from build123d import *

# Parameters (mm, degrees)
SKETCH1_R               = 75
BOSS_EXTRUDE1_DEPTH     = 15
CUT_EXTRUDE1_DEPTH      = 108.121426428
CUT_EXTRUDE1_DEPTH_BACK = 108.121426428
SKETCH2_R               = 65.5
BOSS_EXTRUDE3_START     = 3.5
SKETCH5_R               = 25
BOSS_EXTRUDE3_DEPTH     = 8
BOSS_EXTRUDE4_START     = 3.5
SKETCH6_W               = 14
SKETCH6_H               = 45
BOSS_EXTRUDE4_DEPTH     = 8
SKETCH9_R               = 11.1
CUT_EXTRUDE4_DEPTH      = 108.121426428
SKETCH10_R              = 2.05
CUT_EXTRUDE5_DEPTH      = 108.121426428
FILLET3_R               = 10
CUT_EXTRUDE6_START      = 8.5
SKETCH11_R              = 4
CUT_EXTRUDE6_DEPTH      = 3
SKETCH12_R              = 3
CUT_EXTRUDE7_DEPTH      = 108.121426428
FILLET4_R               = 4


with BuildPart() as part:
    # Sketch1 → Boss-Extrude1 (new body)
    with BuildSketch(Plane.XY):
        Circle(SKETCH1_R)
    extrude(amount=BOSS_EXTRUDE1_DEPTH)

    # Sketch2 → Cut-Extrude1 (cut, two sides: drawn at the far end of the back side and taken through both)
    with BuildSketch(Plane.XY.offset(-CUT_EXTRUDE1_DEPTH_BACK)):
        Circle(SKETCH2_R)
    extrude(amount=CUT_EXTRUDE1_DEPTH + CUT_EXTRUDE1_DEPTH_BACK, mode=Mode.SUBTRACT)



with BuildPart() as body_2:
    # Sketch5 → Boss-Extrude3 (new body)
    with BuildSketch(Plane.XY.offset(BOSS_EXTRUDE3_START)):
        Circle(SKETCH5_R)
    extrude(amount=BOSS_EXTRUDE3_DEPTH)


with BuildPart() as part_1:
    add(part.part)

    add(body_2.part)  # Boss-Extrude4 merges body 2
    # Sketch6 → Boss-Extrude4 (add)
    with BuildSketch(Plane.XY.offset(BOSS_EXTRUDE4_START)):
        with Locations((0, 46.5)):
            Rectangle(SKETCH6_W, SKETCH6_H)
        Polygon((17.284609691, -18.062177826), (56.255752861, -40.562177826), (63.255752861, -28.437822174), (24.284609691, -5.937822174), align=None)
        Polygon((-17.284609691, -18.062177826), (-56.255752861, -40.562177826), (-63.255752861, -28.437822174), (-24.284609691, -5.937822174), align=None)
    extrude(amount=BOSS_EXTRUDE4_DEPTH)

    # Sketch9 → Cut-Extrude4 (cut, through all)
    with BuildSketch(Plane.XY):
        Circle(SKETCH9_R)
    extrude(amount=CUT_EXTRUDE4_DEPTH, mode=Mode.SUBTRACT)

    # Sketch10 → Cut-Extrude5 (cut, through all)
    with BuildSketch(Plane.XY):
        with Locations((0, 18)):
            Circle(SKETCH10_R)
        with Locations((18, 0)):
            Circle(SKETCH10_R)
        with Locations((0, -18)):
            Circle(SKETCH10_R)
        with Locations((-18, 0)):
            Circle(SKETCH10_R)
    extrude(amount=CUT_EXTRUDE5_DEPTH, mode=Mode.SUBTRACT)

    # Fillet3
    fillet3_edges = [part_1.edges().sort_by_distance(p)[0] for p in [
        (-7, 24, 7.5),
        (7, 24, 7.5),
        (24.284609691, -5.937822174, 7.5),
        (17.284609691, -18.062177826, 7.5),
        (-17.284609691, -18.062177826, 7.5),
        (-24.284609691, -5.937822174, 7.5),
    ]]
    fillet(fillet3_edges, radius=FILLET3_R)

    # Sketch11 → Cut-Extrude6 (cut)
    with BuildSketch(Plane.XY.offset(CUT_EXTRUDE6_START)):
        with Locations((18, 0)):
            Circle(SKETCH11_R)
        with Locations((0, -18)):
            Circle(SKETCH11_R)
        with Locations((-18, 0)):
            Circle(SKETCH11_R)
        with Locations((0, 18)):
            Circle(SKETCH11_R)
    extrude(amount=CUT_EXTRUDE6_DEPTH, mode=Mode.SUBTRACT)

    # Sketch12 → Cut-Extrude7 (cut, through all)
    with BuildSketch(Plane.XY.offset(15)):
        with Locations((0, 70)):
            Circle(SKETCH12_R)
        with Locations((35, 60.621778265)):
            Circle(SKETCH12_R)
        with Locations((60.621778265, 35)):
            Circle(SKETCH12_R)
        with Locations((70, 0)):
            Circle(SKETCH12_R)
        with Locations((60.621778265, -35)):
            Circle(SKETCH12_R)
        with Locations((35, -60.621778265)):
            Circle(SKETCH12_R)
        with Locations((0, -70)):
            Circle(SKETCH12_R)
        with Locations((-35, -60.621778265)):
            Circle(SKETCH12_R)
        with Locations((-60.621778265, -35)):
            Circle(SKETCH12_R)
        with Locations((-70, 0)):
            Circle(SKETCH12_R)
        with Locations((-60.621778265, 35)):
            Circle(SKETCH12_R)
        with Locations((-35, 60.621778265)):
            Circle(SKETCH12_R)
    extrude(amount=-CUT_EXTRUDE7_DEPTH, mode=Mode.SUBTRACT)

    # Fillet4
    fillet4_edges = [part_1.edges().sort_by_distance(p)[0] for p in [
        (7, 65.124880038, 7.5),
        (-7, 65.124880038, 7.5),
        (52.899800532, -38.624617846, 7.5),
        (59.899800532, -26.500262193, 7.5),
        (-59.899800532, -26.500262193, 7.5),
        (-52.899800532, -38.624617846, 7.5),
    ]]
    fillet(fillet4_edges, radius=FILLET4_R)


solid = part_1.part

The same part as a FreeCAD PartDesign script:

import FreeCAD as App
import Part
import Sketcher

V = App.Vector
Q = App.Units.Quantity


def edges_at(feature, points):
    """Names of the edges that pass closest to the given points."""
    edges = feature.Shape.Edges
    near = lambda p: min(range(len(edges)), key=lambda i: edges[i].distToShape(Part.Vertex(*p))[0])
    return sorted({f"Edge{near(p) + 1}" for p in points})


def add_polygon(sketch, points):
    """Adds a closed chain of lines whose ends are joined by coincident constraints."""
    first, n = sketch.GeometryCount, len(points)
    for a, b in zip(points, points[1:] + points[:1]):
        sketch.addGeometry(Part.LineSegment(App.Vector(*a, 0), App.Vector(*b, 0)), False)
    for i in range(n):
        sketch.addConstraint(Sketcher.Constraint("Coincident", first + i, 2, first + (i + 1) % n, 1))

doc = App.newDocument("Part")
body = doc.addObject("PartDesign::Body", "Body")

sketch1 = body.newObject("Sketcher::SketchObject", "Sketch")
sketch1.AttachmentSupport = (doc.getObject("XY_Plane"), [""])
sketch1.MapMode = "FlatFace"
sketch1.addGeometry(Part.Circle(V(0, 0, 0), V(0, 0, 1), 75), False)
sketch1.addConstraint([
    Sketcher.Constraint("Coincident", 0, 3, -1, 1),
    Sketcher.Constraint("Diameter", 0, 150.0),
])
pad1 = body.newObject("PartDesign::Pad", "Pad")
pad1.Profile = sketch1
pad1.Length = 15

sketch2 = body.newObject("Sketcher::SketchObject", "Sketch001")
sketch2.AttachmentSupport = (doc.getObject("XY_Plane"), [""])
sketch2.MapMode = "FlatFace"
sketch2.addGeometry(Part.Circle(V(0, 0, 0), V(0, 0, 1), 66), False)
sketch2.addConstraint([
    Sketcher.Constraint("Coincident", 0, 3, -1, 1),
    Sketcher.Constraint("Diameter", 0, 131.0),
])
pocket1 = body.newObject("PartDesign::Pocket", "Pocket")
pocket1.Profile = sketch2
pocket1.Type = "ThroughAll"
pocket1.Midplane = True
body2 = doc.addObject("PartDesign::Body", "Body001")

sketch3 = body2.newObject("Sketcher::SketchObject", "Sketch002")
sketch3.AttachmentSupport = (doc.getObject("XY_Plane001"), [""])
sketch3.MapMode = "FlatFace"
sketch3.AttachmentOffset = App.Placement(V(0, 0, 3.5), App.Rotation())
sketch3.addGeometry(Part.Circle(V(0, 0, 0), V(0, 0, 1), 25), False)
sketch3.addConstraint([
    Sketcher.Constraint("Coincident", 0, 3, -1, 1),
    Sketcher.Constraint("Diameter", 0, 50.0),
])
pad2 = body2.newObject("PartDesign::Pad", "Pad001")
pad2.Profile = sketch3
pad2.Length = 8
body.AllowCompound = True
doc.recompute()

boolean = body.newObject("PartDesign::Boolean", "Boolean")
boolean.Type = "Fuse"
boolean.addObjects([body2])

sketch4 = body.newObject("Sketcher::SketchObject", "Sketch003")
sketch4.AttachmentSupport = (doc.getObject("XY_Plane"), [""])
sketch4.MapMode = "FlatFace"
sketch4.AttachmentOffset = App.Placement(V(0, 0, 3.5), App.Rotation())
add_polygon(sketch4, [(-7, 69), (-7, 24), (7, 24), (7, 69)])
add_polygon(sketch4, [(17, -18), (56, -41), (63, -28), (24, -6)])
add_polygon(sketch4, [(-56, -41), (-17, -18), (-24, -6), (-63, -28)])
sketch4.addConstraint([
    Sketcher.Constraint("Vertical", 0),
    Sketcher.Constraint("Horizontal", 1),
    Sketcher.Constraint("Vertical", 2),
    Sketcher.Constraint("Horizontal", 3),
    Sketcher.Constraint("Symmetric", 7, 2, 8, 2, -2),
    Sketcher.Constraint("Symmetric", 6, 2, 9, 2, -2),
    Sketcher.Constraint("Symmetric", 5, 2, 10, 2, -2),
    Sketcher.Constraint("Symmetric", 4, 2, 11, 2, -2),
    Sketcher.Constraint("Perpendicular", 4, 5),
    Sketcher.Constraint("Perpendicular", 5, 6),
    Sketcher.Constraint("Perpendicular", 6, 7),
    Sketcher.Constraint("DistanceX", 1, 1, 1, 2, 14.0),
    Sketcher.Constraint("DistanceY", 0, 2, 0, 1, 45.0),
    Sketcher.Constraint("Angle", 4, Q("-30 deg")),
    Sketcher.Constraint("Distance", 4, 45.0),
    Sketcher.Constraint("Distance", 5, 14.0),
    Sketcher.Constraint("DistanceX", 0, 2, -1, 1, 7.0),
    Sketcher.Constraint("DistanceY", -1, 1, 0, 2, 24.0),
    Sketcher.Constraint("DistanceX", -1, 1, 6, 2, 24.28461),
    Sketcher.Constraint("DistanceY", 4, 2, -1, 1, 40.562178),
])
pad3 = body.newObject("PartDesign::Pad", "Pad002")
pad3.Profile = sketch4
pad3.Length = 8

sketch5 = body.newObject("Sketcher::SketchObject", "Sketch004")
sketch5.AttachmentSupport = (doc.getObject("XY_Plane"), [""])
sketch5.MapMode = "FlatFace"
sketch5.addGeometry(Part.Circle(V(0, 0, 0), V(0, 0, 1), 11), False)
sketch5.addConstraint([
    Sketcher.Constraint("Coincident", 0, 3, -1, 1),
    Sketcher.Constraint("Diameter", 0, 22.2),
])
pocket2 = body.newObject("PartDesign::Pocket", "Pocket001")
pocket2.Profile = sketch5
pocket2.Type = "ThroughAll"
pocket2.Reversed = True

sketch6 = body.newObject("Sketcher::SketchObject", "Sketch005")
sketch6.AttachmentSupport = (doc.getObject("XY_Plane"), [""])
sketch6.MapMode = "FlatFace"
sketch6.addGeometry([
    Part.Circle(V(0, 18, 0), V(0, 0, 1), 2),
    Part.Circle(V(18, 0, 0), V(0, 0, 1), 2),
    Part.Circle(V(0, -18, 0), V(0, 0, 1), 2),
    Part.Circle(V(-18, 0, 0), V(0, 0, 1), 2),
], False)
sketch6.addConstraint([
    Sketcher.Constraint("Equal", 0, 1),
    Sketcher.Constraint("Equal", 1, 2),
    Sketcher.Constraint("Equal", 2, 3),
    Sketcher.Constraint("Symmetric", 0, 3, 2, 3, -1, 1),
    Sketcher.Constraint("Symmetric", 1, 3, 3, 3, -1, 1),
    Sketcher.Constraint("PointOnObject", 0, 3, -2),
    Sketcher.Constraint("PointOnObject", 1, 3, -1),
    Sketcher.Constraint("Diameter", 0, 4.1),
    Sketcher.Constraint("DistanceY", -1, 1, 0, 3, 18.0),
    Sketcher.Constraint("DistanceX", -1, 1, 1, 3, 18.0),
])
pocket3 = body.newObject("PartDesign::Pocket", "Pocket002")
pocket3.Profile = sketch6
pocket3.Type = "ThroughAll"
pocket3.Reversed = True
doc.recompute()

fillet = body.newObject("PartDesign::Fillet", "Fillet")
fillet.Base = (pocket3, edges_at(pocket3, [
    (-7, 24, 7.5),
    (7, 24, 7.5),
    (24.285, -5.938, 7.5),
    (17.285, -18.062, 7.5),
    (-17.285, -18.062, 7.5),
    (-24.285, -5.938, 7.5),
]))
fillet.Radius = 10

sketch7 = body.newObject("Sketcher::SketchObject", "Sketch006")
sketch7.AttachmentSupport = (doc.getObject("XY_Plane"), [""])
sketch7.MapMode = "FlatFace"
sketch7.AttachmentOffset = App.Placement(V(0, 0, 8.5), App.Rotation())
sketch7.addGeometry([
    Part.Circle(V(18, 0, 0), V(0, 0, 1), 4),
    Part.Circle(V(0, -18, 0), V(0, 0, 1), 4),
    Part.Circle(V(-18, 0, 0), V(0, 0, 1), 4),
    Part.Circle(V(0, 18, 0), V(0, 0, 1), 4),
], False)
sketch7.addConstraint([
    Sketcher.Constraint("Equal", 0, 1),
    Sketcher.Constraint("Equal", 1, 2),
    Sketcher.Constraint("Equal", 2, 3),
    Sketcher.Constraint("Symmetric", 0, 3, 2, 3, -1, 1),
    Sketcher.Constraint("Symmetric", 1, 3, 3, 3, -1, 1),
    Sketcher.Constraint("PointOnObject", 0, 3, -1),
    Sketcher.Constraint("PointOnObject", 1, 3, -2),
    Sketcher.Constraint("Diameter", 0, 8.0),
    Sketcher.Constraint("DistanceX", -1, 1, 0, 3, 18.0),
    Sketcher.Constraint("DistanceY", 1, 3, -1, 1, 18.0),
])
pocket4 = body.newObject("PartDesign::Pocket", "Pocket003")
pocket4.Profile = sketch7
pocket4.Length = 3
pocket4.Reversed = True

sketch8 = body.newObject("Sketcher::SketchObject", "Sketch007")
sketch8.AttachmentSupport = (doc.getObject("XY_Plane"), [""])
sketch8.MapMode = "FlatFace"
sketch8.AttachmentOffset = App.Placement(V(0, 0, 15), App.Rotation())
sketch8.addGeometry([
    Part.Circle(V(0, 70, 0), V(0, 0, 1), 3),
    Part.Circle(V(35, 60.6, 0), V(0, 0, 1), 3),
    Part.Circle(V(60.6, 35, 0), V(0, 0, 1), 3),
    Part.Circle(V(70, 0, 0), V(0, 0, 1), 3),
    Part.Circle(V(60.6, -35, 0), V(0, 0, 1), 3),
    Part.Circle(V(35, -60.6, 0), V(0, 0, 1), 3),
    Part.Circle(V(0, -70, 0), V(0, 0, 1), 3),
    Part.Circle(V(-35, -60.6, 0), V(0, 0, 1), 3),
    Part.Circle(V(-60.6, -35, 0), V(0, 0, 1), 3),
    Part.Circle(V(-70, 0, 0), V(0, 0, 1), 3),
    Part.Circle(V(-60.6, 35, 0), V(0, 0, 1), 3),
    Part.Circle(V(-35, 60.6, 0), V(0, 0, 1), 3),
], False)
sketch8.addConstraint([
    Sketcher.Constraint("Equal", 0, 1),
    Sketcher.Constraint("Equal", 1, 2),
    Sketcher.Constraint("Equal", 2, 3),
    Sketcher.Constraint("Equal", 3, 4),
    Sketcher.Constraint("Equal", 4, 5),
    Sketcher.Constraint("Equal", 5, 6),
    Sketcher.Constraint("Equal", 6, 7),
    Sketcher.Constraint("Equal", 7, 8),
    Sketcher.Constraint("Equal", 8, 9),
    Sketcher.Constraint("Equal", 9, 10),
    Sketcher.Constraint("Equal", 10, 11),
    Sketcher.Constraint("Symmetric", 0, 3, 6, 3, -1, 1),
    Sketcher.Constraint("Symmetric", 1, 3, 7, 3, -1, 1),
    Sketcher.Constraint("Symmetric", 2, 3, 8, 3, -1, 1),
    Sketcher.Constraint("Symmetric", 3, 3, 9, 3, -1, 1),
    Sketcher.Constraint("Symmetric", 4, 3, 10, 3, -1, 1),
    Sketcher.Constraint("Symmetric", 5, 3, 11, 3, -1, 1),
    Sketcher.Constraint("Symmetric", 5, 3, 7, 3, -2),
    Sketcher.Constraint("Symmetric", 4, 3, 8, 3, -2),
    Sketcher.Constraint("PointOnObject", 0, 3, -2),
    Sketcher.Constraint("PointOnObject", 3, 3, -1),
    Sketcher.Constraint("Diameter", 0, 6.0),
    Sketcher.Constraint("DistanceY", -1, 1, 0, 3, 70.0),
    Sketcher.Constraint("DistanceX", -1, 1, 1, 3, 35.0),
    Sketcher.Constraint("DistanceY", -1, 1, 2, 3, 35.0),
    Sketcher.Constraint("DistanceX", -1, 1, 3, 3, 70.0),
    Sketcher.Constraint("DistanceY", -1, 1, 1, 3, 60.621778),
    Sketcher.Constraint("DistanceX", -1, 1, 2, 3, 60.621778),
])
pocket5 = body.newObject("PartDesign::Pocket", "Pocket004")
pocket5.Profile = sketch8
pocket5.Type = "ThroughAll"
doc.recompute()

fillet2 = body.newObject("PartDesign::Fillet", "Fillet001")
fillet2.Base = (pocket5, edges_at(pocket5, [
    (7, 65.125, 7.5),
    (-7, 65.125, 7.5),
    (52.9, -38.625, 7.5),
    (59.9, -26.5, 7.5),
    (-59.9, -26.5, 7.5),
    (-52.9, -38.625, 7.5),
]))
fillet2.Radius = 4

doc.recompute()
